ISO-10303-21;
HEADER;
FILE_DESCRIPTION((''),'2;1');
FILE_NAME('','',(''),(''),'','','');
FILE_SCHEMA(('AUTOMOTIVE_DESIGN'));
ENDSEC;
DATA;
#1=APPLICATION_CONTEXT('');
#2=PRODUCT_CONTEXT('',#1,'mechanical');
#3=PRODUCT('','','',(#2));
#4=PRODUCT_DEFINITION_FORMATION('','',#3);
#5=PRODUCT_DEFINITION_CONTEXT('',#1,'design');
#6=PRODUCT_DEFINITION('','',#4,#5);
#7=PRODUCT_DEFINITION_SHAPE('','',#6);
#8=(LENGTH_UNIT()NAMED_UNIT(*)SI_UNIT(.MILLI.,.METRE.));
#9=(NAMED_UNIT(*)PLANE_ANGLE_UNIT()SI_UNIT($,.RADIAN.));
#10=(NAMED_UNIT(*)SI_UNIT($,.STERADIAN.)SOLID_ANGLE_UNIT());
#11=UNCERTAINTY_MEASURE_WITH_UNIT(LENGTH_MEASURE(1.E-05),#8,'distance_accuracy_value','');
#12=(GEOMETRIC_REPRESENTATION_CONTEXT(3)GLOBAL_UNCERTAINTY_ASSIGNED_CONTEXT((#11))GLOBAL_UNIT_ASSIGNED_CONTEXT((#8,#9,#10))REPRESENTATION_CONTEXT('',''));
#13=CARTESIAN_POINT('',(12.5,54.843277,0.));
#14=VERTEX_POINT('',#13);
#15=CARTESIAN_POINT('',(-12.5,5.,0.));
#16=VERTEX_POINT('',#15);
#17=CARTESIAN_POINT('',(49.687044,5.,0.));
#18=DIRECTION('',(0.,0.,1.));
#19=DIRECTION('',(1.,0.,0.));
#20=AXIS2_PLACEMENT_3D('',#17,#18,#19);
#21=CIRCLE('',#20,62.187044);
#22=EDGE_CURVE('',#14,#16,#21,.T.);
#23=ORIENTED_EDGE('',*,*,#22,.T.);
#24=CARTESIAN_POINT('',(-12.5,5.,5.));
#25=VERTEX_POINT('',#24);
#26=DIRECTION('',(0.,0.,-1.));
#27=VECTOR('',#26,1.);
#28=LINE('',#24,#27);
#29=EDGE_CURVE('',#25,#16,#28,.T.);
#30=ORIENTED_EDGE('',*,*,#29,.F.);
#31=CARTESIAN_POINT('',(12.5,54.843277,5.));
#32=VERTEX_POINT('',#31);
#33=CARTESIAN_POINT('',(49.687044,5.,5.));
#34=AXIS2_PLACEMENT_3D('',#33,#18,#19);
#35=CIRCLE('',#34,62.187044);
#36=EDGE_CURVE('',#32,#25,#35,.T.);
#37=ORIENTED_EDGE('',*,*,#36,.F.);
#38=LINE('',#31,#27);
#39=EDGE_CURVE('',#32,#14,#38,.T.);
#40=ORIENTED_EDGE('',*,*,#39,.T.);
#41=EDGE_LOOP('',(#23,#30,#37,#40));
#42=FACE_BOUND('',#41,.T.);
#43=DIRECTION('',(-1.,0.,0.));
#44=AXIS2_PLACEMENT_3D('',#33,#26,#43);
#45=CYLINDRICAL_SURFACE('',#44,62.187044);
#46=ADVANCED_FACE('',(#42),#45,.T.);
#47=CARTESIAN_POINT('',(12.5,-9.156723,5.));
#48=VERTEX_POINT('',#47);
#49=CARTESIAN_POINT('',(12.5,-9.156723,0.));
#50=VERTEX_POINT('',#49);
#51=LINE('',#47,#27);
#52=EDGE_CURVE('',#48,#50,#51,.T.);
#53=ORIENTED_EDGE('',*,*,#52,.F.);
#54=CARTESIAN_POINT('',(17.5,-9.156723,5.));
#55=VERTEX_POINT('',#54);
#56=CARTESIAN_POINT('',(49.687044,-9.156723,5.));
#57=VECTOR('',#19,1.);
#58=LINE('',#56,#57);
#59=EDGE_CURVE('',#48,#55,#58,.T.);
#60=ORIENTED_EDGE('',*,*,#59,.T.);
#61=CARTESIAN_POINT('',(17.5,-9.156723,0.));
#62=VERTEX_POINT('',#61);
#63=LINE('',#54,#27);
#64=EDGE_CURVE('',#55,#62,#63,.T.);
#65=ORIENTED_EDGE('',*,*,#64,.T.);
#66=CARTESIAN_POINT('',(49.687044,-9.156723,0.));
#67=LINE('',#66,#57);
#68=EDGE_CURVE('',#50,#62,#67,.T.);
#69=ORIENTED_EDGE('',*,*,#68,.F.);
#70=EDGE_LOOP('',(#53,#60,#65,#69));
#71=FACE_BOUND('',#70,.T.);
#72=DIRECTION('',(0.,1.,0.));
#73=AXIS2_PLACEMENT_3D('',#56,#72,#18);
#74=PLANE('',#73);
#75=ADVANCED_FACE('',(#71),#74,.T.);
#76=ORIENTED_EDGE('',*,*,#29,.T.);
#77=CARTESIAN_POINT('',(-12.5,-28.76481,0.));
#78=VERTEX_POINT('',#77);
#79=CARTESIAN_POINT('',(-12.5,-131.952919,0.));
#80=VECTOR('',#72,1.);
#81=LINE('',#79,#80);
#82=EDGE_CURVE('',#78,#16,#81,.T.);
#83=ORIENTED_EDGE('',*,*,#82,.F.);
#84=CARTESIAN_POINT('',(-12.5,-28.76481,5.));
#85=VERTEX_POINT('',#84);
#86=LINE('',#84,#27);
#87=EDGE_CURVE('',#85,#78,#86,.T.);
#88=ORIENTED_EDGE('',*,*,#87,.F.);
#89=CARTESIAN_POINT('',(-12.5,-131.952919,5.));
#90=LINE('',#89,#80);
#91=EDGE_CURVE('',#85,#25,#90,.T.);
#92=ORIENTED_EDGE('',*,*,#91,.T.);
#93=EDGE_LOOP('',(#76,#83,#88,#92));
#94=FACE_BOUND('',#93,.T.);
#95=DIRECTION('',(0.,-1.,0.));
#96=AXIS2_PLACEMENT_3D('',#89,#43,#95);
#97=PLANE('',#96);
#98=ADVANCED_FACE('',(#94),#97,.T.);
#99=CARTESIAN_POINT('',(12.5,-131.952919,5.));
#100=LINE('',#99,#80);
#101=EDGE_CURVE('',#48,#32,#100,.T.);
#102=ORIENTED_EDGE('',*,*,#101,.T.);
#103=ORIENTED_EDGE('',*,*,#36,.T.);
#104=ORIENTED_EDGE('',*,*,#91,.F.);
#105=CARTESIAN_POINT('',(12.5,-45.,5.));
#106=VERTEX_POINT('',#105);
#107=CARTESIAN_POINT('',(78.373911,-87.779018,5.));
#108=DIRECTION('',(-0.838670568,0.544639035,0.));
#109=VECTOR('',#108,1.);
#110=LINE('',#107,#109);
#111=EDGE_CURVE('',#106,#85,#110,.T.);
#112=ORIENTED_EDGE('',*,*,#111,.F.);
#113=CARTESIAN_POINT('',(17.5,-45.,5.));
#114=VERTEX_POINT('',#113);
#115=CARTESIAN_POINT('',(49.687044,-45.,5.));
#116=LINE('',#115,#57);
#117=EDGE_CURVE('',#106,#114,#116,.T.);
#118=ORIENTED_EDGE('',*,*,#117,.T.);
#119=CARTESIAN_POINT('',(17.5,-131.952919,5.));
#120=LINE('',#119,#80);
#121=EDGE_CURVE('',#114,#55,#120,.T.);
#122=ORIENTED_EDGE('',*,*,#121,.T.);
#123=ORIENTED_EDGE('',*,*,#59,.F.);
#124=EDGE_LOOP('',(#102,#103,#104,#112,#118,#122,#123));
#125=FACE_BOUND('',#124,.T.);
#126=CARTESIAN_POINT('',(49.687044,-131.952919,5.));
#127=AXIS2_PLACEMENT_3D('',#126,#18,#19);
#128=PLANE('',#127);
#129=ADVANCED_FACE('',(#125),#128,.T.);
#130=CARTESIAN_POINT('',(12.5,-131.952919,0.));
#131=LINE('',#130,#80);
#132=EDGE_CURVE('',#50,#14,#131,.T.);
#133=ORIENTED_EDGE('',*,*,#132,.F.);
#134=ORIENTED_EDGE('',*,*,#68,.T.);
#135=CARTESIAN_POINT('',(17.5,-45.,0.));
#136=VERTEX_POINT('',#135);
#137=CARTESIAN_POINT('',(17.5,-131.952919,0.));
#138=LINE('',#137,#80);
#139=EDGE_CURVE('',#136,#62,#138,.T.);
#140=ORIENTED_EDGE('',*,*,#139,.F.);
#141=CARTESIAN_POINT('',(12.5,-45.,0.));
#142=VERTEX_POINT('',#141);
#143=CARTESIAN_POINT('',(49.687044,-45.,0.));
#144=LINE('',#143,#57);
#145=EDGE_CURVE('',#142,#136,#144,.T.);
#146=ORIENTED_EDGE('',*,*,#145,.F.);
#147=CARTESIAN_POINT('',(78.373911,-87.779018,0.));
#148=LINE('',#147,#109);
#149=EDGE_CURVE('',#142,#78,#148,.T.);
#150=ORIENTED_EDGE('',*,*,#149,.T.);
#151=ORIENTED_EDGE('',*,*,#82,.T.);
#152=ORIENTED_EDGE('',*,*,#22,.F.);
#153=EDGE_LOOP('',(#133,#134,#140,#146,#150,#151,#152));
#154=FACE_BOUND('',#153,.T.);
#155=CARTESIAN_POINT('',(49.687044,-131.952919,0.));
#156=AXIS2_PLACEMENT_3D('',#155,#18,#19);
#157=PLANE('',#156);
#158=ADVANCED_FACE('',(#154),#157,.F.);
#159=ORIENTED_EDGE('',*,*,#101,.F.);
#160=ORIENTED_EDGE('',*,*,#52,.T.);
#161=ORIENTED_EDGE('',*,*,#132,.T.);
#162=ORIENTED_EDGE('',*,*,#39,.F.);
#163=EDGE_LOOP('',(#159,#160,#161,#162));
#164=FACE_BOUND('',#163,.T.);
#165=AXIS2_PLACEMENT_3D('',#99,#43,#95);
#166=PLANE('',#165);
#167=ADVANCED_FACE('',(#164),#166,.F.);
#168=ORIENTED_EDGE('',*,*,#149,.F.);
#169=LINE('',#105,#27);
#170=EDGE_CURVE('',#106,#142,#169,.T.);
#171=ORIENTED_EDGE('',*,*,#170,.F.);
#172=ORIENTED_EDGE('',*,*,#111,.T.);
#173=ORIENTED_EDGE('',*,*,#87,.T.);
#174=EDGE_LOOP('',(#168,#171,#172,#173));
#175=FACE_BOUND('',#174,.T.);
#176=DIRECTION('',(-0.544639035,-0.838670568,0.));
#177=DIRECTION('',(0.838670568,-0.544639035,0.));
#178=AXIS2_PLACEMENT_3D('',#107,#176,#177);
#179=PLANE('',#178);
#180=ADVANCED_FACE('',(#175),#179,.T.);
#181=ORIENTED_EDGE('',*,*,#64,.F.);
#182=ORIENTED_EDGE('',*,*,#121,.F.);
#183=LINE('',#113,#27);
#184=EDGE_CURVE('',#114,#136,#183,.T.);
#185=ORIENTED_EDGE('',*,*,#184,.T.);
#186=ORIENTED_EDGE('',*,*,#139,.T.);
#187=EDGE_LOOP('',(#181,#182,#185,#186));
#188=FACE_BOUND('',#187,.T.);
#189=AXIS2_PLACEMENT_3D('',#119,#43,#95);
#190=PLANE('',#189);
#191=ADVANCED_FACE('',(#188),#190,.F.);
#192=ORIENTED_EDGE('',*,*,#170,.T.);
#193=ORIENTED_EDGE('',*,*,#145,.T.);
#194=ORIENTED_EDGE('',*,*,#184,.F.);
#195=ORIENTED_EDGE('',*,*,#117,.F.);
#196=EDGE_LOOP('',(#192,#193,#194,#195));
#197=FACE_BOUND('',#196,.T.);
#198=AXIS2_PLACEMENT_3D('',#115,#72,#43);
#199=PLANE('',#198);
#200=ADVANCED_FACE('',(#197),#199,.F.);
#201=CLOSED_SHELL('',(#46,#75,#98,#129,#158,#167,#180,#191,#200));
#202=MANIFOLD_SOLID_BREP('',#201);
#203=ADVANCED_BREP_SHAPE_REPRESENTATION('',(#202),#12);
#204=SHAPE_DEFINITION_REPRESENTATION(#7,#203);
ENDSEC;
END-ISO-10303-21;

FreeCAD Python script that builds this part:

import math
import FreeCAD as App
import Part
import Sketcher
from FreeCAD import Vector
Q = App.Units.Quantity

doc = App.newDocument("Part")
params = doc.addObject("Spreadsheet::Sheet", "Params")
for row, (alias, value) in enumerate([
    ("sketch1_width", "5 mm"),
    ("sketch1_height", "64 mm"),
    ("pad1_length", "5 mm"),
], start=1):
    params.set(f"A{row}", alias)
    params.set(f"B{row}", "=" + value)
    params.setAlias(f"B{row}", alias)

body = doc.addObject("PartDesign::Body", "Body")

# Sketch on XY plane
sketch1 = doc.addObject("Sketcher::SketchObject", "Sketch")
body.addObject(sketch1)
sketch1.AttachmentSupport = (doc.XY_Plane, [""])
sketch1.MapMode = "FlatFace"
sketch1.addGeometry([
    Part.LineSegment(Vector(-12.5, 5, 0), Vector(-12.5, -28.76481, 0)),  # 0
    Part.LineSegment(Vector(-12.5, -28.76481, 0), Vector(12.5, -45, 0)),  # 1
    Part.LineSegment(Vector(12.5, -45, 0), Vector(17.5, -45, 0)),  # 2
    Part.LineSegment(Vector(17.5, -45, 0), Vector(17.5, -9.156723, 0)),  # 3
    Part.LineSegment(Vector(17.5, -9.156723, 0), Vector(12.5, -9.156723, 0)),  # 4
    Part.LineSegment(Vector(12.5, -9.156723, 0), Vector(12.5, 54.843277, 0)),  # 5
    Part.ArcOfCircle(Part.Circle(Vector(49.687044, 5, 0), Vector(0, 0, 1), 62.187044), math.radians(126.725863), math.radians(180)),  # 6
], False)
sketch1.addConstraint([
    Sketcher.Constraint("Coincident", 0, 2, 1, 1),
    Sketcher.Constraint("Coincident", 1, 2, 2, 1),
    Sketcher.Constraint("Coincident", 2, 2, 3, 1),
    Sketcher.Constraint("Coincident", 3, 2, 4, 1),
    Sketcher.Constraint("Coincident", 4, 2, 5, 1),
    Sketcher.Constraint("Coincident", 5, 2, 6, 1),
    Sketcher.Constraint("Tangent", 6, 2, 0, 1),
    Sketcher.Constraint("Vertical", 0),
    Sketcher.Constraint("Horizontal", 2),
    Sketcher.Constraint("Vertical", 3),
    Sketcher.Constraint("Horizontal", 4),
    Sketcher.Constraint("Vertical", 5),
    Sketcher.Constraint("Vertical", 1, 2, 4, 2),
    Sketcher.Constraint("DistanceX", 2, 1, 2, 2, Q("5 mm")),
    Sketcher.Constraint("DistanceY", 5, 1, 5, 2, Q("64 mm")),
    Sketcher.Constraint("Angle", 1, Q("-33 deg")),
    Sketcher.Constraint("DistanceY", -1, 1, 6, 3, Q("5 mm")),
    Sketcher.Constraint("DistanceY", 1, 2, -1, 1, Q("45 mm")),
    Sketcher.Constraint("DistanceX", 0, 2, 1, 2, Q("25 mm")),
    Sketcher.Constraint("DistanceX", 0, 2, -1, 1, Q("12.5 mm")),
    Sketcher.Constraint("Radius", 6, Q("62.187044 mm")),
])
sketch1.setExpression("Constraints[13]", "Params.sketch1_width")
sketch1.setExpression("Constraints[14]", "Params.sketch1_height")
pad1 = doc.addObject("PartDesign::Pad", "Pad")
body.addObject(pad1)
pad1.Profile = sketch1
pad1.setExpression("Length", "Params.pad1_length")

doc.recompute()
